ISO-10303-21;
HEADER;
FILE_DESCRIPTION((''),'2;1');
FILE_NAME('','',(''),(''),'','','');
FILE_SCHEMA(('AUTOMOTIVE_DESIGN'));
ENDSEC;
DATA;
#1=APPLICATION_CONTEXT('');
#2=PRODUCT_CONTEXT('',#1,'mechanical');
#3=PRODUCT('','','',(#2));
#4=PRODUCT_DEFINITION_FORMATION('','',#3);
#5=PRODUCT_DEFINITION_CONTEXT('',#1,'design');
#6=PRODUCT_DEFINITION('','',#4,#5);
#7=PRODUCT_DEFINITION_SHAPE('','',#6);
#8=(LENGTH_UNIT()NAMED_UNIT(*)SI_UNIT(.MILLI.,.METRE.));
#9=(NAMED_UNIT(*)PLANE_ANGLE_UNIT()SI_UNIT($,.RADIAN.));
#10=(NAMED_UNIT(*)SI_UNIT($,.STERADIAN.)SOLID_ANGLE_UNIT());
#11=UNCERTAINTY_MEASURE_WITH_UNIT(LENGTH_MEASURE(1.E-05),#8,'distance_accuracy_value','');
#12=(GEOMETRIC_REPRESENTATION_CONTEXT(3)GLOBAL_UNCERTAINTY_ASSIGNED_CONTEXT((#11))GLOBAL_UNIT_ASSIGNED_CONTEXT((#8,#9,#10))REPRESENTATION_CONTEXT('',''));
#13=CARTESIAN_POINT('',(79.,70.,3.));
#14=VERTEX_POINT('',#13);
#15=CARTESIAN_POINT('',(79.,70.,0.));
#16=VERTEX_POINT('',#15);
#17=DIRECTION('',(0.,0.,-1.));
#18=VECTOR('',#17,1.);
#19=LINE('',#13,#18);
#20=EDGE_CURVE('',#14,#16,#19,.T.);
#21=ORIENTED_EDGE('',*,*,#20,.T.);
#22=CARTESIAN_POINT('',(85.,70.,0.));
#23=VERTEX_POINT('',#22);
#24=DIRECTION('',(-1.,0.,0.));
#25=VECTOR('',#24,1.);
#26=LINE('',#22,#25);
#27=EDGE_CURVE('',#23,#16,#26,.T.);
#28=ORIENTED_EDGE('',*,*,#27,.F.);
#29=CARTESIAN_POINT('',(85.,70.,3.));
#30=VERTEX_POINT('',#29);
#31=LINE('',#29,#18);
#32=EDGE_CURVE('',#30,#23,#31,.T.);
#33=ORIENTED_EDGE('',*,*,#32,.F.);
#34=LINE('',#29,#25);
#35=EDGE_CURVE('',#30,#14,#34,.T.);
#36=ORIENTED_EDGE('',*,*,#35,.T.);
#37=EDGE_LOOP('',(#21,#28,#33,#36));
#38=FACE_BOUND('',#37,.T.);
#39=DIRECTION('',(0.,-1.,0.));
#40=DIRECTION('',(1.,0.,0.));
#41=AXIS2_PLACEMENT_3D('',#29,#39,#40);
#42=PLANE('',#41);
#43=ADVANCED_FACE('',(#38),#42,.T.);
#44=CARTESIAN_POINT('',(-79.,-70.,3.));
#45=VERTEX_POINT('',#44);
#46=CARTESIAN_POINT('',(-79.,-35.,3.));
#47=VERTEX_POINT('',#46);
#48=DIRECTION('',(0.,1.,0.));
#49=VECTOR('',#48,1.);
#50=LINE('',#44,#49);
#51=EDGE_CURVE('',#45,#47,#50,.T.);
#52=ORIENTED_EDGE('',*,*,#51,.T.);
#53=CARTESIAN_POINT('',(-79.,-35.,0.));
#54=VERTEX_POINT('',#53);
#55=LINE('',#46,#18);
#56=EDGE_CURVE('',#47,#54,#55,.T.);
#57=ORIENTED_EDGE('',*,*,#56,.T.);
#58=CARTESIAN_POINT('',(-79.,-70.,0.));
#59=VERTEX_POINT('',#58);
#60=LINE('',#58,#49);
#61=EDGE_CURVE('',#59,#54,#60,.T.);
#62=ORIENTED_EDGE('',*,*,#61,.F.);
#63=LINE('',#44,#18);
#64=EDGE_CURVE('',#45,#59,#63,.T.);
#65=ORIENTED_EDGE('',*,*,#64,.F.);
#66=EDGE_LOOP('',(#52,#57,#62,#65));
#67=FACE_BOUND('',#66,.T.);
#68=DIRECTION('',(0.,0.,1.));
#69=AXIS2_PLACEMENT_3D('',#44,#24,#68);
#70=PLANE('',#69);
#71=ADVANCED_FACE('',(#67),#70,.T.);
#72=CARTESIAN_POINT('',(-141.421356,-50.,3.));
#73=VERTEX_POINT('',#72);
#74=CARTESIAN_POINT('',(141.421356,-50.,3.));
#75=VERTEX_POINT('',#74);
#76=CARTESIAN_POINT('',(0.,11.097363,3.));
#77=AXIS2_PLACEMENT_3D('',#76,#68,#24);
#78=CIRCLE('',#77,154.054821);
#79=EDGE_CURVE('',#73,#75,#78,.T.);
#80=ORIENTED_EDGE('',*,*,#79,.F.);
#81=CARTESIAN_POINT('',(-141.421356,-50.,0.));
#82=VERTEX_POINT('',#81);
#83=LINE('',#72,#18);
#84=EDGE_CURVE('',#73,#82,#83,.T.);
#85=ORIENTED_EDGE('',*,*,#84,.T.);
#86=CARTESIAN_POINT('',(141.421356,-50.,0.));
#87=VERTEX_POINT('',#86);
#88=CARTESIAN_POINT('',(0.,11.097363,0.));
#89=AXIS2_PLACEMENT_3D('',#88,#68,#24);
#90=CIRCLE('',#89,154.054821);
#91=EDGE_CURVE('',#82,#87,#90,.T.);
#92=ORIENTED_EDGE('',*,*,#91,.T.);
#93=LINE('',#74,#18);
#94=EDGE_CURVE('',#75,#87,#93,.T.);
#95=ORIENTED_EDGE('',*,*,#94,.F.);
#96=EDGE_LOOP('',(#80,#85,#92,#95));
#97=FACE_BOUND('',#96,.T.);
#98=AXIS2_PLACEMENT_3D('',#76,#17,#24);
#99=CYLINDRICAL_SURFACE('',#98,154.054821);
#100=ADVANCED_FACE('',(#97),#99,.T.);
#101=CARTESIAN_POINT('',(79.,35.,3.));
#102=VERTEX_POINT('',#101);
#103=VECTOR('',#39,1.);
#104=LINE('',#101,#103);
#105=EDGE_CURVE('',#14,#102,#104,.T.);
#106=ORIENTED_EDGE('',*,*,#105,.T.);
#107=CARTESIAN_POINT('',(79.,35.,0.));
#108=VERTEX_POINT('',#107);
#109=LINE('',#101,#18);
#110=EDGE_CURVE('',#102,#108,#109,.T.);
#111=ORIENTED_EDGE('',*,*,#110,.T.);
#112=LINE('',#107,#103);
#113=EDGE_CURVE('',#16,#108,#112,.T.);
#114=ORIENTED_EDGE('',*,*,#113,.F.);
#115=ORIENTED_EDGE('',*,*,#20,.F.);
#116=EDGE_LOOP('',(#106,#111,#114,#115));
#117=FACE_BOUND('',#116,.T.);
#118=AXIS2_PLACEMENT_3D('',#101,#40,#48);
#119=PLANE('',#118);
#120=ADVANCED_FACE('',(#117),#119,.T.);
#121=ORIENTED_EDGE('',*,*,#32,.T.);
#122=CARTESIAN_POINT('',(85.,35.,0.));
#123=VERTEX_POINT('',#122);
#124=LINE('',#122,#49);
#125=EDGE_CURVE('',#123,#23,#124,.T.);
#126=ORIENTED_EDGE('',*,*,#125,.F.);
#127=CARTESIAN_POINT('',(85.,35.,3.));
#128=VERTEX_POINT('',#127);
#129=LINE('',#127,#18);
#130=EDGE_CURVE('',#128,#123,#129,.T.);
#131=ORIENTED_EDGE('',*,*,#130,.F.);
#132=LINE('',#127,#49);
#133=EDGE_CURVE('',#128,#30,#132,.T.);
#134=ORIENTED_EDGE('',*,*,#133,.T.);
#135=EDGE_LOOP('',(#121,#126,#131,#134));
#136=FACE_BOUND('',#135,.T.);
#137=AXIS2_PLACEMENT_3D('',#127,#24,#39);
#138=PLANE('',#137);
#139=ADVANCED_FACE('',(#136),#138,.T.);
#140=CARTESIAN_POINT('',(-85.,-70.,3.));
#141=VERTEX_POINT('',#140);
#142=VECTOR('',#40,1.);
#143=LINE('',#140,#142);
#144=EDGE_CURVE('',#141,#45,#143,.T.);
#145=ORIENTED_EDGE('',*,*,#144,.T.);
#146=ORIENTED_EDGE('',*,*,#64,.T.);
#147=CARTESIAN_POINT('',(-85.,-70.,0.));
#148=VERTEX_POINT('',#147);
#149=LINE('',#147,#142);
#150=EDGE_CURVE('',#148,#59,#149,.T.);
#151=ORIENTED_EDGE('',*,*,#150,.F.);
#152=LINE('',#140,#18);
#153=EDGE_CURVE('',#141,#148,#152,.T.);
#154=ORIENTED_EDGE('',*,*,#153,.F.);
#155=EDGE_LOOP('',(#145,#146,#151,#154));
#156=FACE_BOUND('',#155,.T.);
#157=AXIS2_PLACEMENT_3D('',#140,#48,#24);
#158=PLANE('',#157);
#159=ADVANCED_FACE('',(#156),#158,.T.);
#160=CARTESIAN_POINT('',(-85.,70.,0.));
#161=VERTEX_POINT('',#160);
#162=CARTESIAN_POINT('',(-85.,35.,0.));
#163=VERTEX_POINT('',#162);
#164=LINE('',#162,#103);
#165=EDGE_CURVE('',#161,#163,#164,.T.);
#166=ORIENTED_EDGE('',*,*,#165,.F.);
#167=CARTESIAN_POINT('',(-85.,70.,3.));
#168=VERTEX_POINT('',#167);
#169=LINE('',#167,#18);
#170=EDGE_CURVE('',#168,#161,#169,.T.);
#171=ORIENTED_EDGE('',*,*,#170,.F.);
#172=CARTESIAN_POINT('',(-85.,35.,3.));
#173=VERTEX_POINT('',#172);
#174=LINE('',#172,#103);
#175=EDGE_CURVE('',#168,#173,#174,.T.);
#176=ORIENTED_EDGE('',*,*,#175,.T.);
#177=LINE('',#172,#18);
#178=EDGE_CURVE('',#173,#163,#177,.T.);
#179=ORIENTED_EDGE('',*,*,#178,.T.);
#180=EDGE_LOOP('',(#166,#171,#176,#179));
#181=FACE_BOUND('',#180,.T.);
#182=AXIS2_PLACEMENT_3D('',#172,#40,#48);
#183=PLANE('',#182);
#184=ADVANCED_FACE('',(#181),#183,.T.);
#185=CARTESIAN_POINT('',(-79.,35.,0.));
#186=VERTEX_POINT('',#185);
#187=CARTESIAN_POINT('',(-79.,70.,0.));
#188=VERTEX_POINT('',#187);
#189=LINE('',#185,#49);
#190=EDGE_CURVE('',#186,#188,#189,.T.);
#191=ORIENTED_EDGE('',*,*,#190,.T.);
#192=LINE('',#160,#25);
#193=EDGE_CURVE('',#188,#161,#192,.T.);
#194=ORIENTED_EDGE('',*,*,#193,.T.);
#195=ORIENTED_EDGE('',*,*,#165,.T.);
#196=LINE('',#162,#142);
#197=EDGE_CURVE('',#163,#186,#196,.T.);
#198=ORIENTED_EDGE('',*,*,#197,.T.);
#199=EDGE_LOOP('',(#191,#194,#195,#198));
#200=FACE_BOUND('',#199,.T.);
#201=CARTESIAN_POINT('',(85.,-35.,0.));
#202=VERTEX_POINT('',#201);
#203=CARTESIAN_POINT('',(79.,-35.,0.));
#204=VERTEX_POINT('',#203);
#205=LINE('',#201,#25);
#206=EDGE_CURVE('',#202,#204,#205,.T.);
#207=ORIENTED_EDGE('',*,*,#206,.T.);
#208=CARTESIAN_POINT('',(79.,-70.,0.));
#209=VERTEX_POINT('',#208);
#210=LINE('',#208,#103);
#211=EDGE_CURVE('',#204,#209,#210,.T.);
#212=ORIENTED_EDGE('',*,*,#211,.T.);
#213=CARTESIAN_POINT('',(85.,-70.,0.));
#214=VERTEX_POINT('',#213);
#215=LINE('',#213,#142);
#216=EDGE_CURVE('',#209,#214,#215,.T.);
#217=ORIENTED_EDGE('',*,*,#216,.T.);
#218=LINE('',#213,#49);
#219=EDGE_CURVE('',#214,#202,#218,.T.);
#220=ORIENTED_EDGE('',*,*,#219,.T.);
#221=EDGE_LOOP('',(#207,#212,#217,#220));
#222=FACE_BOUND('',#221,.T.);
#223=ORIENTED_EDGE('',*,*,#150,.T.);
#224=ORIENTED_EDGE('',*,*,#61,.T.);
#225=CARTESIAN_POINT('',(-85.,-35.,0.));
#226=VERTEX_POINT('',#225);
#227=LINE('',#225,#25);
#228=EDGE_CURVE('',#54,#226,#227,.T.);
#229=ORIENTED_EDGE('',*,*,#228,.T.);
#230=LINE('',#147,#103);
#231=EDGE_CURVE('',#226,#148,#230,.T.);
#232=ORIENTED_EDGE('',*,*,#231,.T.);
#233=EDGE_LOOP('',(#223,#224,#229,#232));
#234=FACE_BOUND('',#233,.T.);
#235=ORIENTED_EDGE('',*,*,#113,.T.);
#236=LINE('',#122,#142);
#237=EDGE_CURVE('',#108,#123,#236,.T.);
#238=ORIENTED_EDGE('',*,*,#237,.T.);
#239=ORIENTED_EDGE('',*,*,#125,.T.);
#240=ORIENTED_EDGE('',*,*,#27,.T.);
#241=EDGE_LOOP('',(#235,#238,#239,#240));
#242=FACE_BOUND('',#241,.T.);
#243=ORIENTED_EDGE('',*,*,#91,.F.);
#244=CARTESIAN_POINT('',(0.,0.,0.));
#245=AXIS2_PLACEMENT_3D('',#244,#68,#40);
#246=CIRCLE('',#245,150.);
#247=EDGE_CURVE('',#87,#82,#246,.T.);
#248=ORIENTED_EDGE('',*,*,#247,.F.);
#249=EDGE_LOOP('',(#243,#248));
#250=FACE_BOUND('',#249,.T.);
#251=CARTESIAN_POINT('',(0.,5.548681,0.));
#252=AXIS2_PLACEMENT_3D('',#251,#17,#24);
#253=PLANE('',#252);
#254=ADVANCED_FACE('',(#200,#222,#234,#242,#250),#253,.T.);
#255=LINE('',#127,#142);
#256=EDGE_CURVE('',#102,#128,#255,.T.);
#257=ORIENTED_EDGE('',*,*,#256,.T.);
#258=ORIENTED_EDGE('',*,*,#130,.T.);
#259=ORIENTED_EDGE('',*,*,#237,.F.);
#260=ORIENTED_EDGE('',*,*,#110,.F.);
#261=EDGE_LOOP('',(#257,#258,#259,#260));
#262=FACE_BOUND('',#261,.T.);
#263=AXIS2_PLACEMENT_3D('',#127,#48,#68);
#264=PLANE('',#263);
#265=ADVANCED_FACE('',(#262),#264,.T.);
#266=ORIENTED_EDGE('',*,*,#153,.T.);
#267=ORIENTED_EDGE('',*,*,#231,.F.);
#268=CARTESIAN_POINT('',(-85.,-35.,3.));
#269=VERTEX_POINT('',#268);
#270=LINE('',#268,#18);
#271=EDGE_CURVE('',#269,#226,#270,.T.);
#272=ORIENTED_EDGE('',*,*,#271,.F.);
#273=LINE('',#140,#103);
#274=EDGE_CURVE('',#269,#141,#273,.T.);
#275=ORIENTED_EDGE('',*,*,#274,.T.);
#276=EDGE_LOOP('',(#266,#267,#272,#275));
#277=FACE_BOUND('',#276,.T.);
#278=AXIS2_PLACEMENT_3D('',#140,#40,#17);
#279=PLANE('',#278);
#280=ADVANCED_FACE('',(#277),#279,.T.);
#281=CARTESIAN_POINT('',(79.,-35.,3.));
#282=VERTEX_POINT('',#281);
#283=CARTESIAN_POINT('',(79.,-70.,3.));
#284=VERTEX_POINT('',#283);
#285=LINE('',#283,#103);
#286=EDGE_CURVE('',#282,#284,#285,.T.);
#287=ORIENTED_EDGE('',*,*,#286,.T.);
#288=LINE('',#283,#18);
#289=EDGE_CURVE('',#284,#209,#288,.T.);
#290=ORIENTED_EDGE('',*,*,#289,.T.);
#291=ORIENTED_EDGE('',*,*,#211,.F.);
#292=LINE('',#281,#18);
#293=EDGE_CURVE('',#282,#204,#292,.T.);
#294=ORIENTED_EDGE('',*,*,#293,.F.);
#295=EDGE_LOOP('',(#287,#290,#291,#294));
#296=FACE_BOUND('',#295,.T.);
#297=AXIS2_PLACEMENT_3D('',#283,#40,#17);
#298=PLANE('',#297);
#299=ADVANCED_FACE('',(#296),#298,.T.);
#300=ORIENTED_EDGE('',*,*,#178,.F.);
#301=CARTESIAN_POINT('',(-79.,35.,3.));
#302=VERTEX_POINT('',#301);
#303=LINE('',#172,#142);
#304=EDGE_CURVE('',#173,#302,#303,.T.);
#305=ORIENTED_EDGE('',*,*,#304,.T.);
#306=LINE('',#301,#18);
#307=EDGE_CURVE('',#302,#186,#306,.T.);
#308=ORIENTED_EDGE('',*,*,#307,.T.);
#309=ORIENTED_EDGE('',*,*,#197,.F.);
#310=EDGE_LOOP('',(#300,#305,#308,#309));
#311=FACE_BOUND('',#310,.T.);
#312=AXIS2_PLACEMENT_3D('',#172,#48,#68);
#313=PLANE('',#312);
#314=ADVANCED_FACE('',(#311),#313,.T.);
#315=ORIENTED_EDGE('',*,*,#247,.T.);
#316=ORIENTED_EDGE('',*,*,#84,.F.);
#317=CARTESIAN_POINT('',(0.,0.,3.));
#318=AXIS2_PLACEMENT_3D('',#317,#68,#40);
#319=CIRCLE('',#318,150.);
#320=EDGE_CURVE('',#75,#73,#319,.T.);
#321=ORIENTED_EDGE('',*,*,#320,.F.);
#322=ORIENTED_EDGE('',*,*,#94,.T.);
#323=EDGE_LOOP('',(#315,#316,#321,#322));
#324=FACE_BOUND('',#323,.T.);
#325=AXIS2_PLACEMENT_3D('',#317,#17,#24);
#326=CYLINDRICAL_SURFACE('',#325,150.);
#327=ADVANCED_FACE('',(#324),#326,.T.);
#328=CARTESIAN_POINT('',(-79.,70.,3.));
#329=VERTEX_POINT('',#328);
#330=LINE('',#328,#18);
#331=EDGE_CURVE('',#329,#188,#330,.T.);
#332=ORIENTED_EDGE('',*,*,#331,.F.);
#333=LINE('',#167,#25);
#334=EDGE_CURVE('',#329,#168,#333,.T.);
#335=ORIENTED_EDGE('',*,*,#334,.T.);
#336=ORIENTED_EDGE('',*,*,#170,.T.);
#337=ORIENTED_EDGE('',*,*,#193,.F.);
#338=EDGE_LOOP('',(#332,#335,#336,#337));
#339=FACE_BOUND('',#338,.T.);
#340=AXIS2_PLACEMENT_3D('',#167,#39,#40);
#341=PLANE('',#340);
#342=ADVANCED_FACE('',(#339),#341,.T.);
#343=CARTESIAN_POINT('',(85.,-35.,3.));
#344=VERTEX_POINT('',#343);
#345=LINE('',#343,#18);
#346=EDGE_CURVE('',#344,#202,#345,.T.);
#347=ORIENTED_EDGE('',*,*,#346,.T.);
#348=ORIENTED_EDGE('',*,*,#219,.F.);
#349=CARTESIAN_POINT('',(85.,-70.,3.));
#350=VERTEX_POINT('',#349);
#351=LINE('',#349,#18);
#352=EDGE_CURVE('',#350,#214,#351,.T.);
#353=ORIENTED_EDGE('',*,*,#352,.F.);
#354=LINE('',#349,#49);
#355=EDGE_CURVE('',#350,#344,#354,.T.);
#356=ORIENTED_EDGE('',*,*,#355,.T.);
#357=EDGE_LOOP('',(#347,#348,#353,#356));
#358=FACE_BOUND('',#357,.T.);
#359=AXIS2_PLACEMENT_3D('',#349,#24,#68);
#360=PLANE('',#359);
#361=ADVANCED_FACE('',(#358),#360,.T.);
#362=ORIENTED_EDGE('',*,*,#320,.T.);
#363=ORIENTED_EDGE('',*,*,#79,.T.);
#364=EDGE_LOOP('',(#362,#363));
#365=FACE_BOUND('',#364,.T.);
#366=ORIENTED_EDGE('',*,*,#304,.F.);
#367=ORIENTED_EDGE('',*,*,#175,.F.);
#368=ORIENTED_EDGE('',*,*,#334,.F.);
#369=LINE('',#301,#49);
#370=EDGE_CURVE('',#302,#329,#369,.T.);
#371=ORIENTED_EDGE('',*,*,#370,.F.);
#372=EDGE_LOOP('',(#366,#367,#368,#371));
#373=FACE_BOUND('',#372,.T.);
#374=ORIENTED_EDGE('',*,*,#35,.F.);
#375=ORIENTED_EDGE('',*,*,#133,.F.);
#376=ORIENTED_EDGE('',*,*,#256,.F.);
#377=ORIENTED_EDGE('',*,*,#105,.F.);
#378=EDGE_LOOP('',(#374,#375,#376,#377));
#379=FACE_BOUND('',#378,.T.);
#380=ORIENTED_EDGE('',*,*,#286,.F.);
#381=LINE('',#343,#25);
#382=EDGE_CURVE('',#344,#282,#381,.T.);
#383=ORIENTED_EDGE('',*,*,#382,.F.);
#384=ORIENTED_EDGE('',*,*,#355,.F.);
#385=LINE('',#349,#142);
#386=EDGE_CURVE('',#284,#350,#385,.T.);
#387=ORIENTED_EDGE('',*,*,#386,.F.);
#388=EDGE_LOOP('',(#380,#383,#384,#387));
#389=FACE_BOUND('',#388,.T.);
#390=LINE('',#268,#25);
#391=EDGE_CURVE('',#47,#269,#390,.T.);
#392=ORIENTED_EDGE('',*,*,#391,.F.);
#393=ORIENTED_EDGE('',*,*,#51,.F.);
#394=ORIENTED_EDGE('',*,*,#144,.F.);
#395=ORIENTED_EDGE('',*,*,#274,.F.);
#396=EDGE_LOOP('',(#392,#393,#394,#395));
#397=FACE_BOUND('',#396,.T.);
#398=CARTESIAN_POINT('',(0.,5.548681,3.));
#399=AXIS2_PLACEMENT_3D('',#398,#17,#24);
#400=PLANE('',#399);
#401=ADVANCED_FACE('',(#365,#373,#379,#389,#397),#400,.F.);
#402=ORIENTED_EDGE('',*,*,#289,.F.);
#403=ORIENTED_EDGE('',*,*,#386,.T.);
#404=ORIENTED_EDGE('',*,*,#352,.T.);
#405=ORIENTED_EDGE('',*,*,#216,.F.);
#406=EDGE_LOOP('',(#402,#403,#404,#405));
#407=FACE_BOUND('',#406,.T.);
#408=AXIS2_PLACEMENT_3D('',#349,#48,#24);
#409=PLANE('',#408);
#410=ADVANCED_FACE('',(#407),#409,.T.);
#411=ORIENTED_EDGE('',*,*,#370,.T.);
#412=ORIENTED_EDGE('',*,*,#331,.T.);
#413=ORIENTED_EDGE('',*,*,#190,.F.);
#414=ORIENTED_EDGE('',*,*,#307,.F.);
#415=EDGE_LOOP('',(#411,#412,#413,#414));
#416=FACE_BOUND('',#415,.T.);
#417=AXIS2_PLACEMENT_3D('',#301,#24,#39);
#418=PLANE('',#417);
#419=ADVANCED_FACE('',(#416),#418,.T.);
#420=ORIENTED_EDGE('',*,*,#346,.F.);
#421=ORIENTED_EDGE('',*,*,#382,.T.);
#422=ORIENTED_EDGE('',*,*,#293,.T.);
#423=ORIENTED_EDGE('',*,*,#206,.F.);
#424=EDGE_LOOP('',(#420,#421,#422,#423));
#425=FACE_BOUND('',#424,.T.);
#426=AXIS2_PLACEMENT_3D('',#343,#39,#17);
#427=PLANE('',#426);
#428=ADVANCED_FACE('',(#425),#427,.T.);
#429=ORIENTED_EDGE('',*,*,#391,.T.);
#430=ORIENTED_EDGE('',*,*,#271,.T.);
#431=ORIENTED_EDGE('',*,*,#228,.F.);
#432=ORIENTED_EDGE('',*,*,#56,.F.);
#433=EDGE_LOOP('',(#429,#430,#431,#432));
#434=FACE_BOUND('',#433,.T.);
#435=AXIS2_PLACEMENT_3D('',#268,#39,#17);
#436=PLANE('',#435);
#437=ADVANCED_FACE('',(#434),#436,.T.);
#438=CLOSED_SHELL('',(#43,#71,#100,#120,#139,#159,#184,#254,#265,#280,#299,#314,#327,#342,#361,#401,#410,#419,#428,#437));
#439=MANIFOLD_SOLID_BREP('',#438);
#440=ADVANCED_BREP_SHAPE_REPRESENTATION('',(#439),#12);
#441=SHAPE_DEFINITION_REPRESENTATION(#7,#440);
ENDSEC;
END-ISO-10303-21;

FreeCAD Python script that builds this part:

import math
import FreeCAD as App
import Part
import Sketcher
from FreeCAD import Vector


def add_polygon(sketch, points):
    """Adds a closed chain of lines whose ends are joined by coincident constraints."""
    first, n = sketch.GeometryCount, len(points)
    for a, b in zip(points, points[1:] + points[:1]):
        sketch.addGeometry(Part.LineSegment(App.Vector(*a, 0), App.Vector(*b, 0)), False)
    for i in range(n):
        sketch.addConstraint(Sketcher.Constraint("Coincident", first + i, 2, first + (i + 1) % n, 1))

doc = App.newDocument("Part")
params = doc.addObject("Spreadsheet::Sheet", "Params")
for row, (alias, value) in enumerate([
    ("sketch1_radius", "150 mm"),
    ("sketch1_width", "6 mm"),
    ("sketch1_height", "35 mm"),
    ("pad1_length", "3 mm"),
], start=1):
    params.set(f"A{row}", alias)
    params.set(f"B{row}", "=" + value)
    params.setAlias(f"B{row}", alias)

body = doc.addObject("PartDesign::Body", "Body")

# Sketch on XY plane
sketch1 = body.newObject("Sketcher::SketchObject", "Sketch")
sketch1.AttachmentSupport = (doc.getObject("XY_Plane"), [""])
sketch1.MapMode = "FlatFace"
sketch1.addGeometry(Part.ArcOfCircle(Part.Circle(Vector(0, 0, 0), Vector(0, 0, 1), 150), math.radians(-19), math.radians(199)), False)  # 0
sketch1.addGeometry(Part.ArcOfCircle(Part.Circle(Vector(0, 11, 0), Vector(0, 0, 1), 154), math.radians(-157), math.radians(-23)), False)  # 1
add_polygon(sketch1, [(-79, -70), (-85, -70), (-85, -35), (-79, -35)])  # lines 2-5
add_polygon(sketch1, [(85, -70), (79, -70), (79, -35), (85, -35)])  # lines 6-9
add_polygon(sketch1, [(-79, 35), (-85, 35), (-85, 70), (-79, 70)])  # lines 10-13
add_polygon(sketch1, [(85, 35), (79, 35), (79, 70), (85, 70)])  # lines 14-17
sketch1.addConstraint([
    Sketcher.Constraint("Coincident", 0, 1, 1, 2),
    Sketcher.Constraint("Coincident", 1, 1, 0, 2),
    Sketcher.Constraint("Horizontal", 2),
    Sketcher.Constraint("Vertical", 3),
    Sketcher.Constraint("Horizontal", 4),
    Sketcher.Constraint("Vertical", 5),
    Sketcher.Constraint("Horizontal", 6),
    Sketcher.Constraint("Vertical", 7),
    Sketcher.Constraint("Horizontal", 8),
    Sketcher.Constraint("Vertical", 9),
    Sketcher.Constraint("Horizontal", 10),
    Sketcher.Constraint("Vertical", 11),
    Sketcher.Constraint("Horizontal", 12),
    Sketcher.Constraint("Vertical", 13),
    Sketcher.Constraint("Horizontal", 14),
    Sketcher.Constraint("Vertical", 15),
    Sketcher.Constraint("Horizontal", 16),
    Sketcher.Constraint("Vertical", 17),
    Sketcher.Constraint("Coincident", 0, 3, -1, 1),
    Sketcher.Constraint("Symmetric", 8, 2, 10, 2, -1, 1),
    Sketcher.Constraint("Symmetric", 6, 2, 12, 2, -1, 1),
    Sketcher.Constraint("Symmetric", 4, 2, 14, 2, -1, 1),
    Sketcher.Constraint("Symmetric", 2, 2, 16, 2, -1, 1),
    Sketcher.Constraint("Symmetric", 5, 2, 6, 2, -2),
    Sketcher.Constraint("Symmetric", 3, 2, 8, 2, -2),
    Sketcher.Constraint("PointOnObject", 1, 3, -2),
    Sketcher.Constraint("Radius", 0, 150.0),
    Sketcher.Constraint("DistanceX", 2, 2, 2, 1, 6.0),
    Sketcher.Constraint("DistanceY", 3, 1, 3, 2, 35.0),
    Sketcher.Constraint("DistanceY", 0, 1, -1, 1, 50.0),
    Sketcher.Constraint("DistanceX", 2, 2, -1, 1, 85.0),
    Sketcher.Constraint("DistanceY", 2, 2, -1, 1, 70.0),
    Sketcher.Constraint("Radius", 1, 154.054821),
])
sketch1.setExpression("Constraints[42]", "Params.sketch1_radius")
sketch1.setExpression("Constraints[43]", "Params.sketch1_width")
sketch1.setExpression("Constraints[44]", "Params.sketch1_height")
pad1 = body.newObject("PartDesign::Pad", "Pad")
pad1.Profile = sketch1
pad1.setExpression("Length", "Params.pad1_length")

doc.recompute()
